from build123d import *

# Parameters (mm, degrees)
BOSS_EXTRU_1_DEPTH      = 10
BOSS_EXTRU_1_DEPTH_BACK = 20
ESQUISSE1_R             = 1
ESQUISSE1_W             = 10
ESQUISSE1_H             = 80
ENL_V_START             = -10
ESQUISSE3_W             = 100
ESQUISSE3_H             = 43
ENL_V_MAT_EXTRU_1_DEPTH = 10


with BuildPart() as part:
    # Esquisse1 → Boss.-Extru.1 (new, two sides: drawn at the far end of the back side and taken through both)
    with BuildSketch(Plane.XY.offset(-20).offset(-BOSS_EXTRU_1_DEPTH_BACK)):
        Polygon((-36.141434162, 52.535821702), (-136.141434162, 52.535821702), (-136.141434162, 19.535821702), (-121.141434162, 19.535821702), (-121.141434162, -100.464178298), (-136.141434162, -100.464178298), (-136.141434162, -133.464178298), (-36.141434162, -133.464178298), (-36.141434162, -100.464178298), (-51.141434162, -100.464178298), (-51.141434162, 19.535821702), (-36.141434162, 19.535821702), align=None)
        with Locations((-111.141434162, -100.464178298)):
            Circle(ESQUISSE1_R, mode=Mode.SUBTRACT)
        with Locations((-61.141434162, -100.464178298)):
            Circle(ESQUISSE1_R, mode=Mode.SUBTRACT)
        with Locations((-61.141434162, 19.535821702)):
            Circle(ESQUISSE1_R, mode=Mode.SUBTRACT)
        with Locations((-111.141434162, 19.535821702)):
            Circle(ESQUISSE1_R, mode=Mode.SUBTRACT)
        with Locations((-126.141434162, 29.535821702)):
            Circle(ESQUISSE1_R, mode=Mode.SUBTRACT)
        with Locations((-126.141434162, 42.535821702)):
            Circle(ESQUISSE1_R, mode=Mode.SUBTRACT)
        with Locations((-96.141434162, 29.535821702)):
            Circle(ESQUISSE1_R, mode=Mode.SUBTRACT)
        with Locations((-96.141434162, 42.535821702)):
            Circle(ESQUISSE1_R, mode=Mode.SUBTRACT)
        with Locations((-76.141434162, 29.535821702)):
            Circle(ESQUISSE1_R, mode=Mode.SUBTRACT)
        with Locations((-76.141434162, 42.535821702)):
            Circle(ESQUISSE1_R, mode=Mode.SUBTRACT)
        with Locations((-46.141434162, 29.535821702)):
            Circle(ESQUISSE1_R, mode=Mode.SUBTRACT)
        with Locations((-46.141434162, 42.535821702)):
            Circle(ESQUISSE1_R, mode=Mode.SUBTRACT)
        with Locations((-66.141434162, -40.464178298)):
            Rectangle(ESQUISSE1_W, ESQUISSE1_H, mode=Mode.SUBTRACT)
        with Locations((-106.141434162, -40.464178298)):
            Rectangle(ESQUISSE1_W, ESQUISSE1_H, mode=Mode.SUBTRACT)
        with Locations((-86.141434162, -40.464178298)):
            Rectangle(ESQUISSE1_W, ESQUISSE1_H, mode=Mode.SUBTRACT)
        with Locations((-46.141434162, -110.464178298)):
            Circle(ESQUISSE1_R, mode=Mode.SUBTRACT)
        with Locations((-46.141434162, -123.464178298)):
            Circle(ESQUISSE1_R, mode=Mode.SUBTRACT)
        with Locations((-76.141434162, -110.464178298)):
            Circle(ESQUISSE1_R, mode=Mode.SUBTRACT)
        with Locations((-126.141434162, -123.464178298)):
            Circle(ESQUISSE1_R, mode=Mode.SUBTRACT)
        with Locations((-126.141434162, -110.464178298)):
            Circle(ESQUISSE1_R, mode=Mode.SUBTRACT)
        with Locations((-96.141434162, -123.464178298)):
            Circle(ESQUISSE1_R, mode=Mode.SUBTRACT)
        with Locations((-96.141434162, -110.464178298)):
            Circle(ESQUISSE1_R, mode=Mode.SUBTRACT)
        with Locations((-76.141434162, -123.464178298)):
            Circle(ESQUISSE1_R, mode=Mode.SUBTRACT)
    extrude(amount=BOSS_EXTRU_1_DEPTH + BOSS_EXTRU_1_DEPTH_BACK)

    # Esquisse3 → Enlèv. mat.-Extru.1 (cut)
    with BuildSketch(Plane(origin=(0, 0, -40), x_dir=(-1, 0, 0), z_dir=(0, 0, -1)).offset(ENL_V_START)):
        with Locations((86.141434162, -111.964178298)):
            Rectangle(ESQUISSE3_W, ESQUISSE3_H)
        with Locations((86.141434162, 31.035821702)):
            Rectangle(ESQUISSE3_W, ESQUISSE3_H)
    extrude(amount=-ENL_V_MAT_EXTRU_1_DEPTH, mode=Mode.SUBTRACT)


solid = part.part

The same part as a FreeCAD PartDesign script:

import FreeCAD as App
import Part
import Sketcher

V = App.Vector
Q = App.Units.Quantity


def add_polygon(sketch, points):
    """Adds a closed chain of lines whose ends are joined by coincident constraints."""
    first, n = sketch.GeometryCount, len(points)
    for a, b in zip(points, points[1:] + points[:1]):
        sketch.addGeometry(Part.LineSegment(App.Vector(*a, 0), App.Vector(*b, 0)), False)
    for i in range(n):
        sketch.addConstraint(Sketcher.Constraint("Coincident", first + i, 2, first + (i + 1) % n, 1))

doc = App.newDocument("Part")
body = doc.addObject("PartDesign::Body", "Body")

sketch1 = body.newObject("Sketcher::SketchObject", "Sketch")
sketch1.AttachmentSupport = (doc.getObject("XY_Plane"), [""])
sketch1.MapMode = "FlatFace"
sketch1.AttachmentOffset = App.Placement(V(0, 0, -20), App.Rotation())
add_polygon(sketch1, [(-36.1, 52.5), (-136.1, 52.5), (-136.1, 19.5), (-121.1, 19.5), (-121.1, -100.5), (-136.1, -100.5), (-136.1, -133.5), (-36.1, -133.5), (-36.1, -100.5), (-51.1, -100.5), (-51.1, 19.5), (-36.1, 19.5)])
sketch1.addGeometry(Part.Circle(V(-126.1, -123.5, 0), V(0, 0, 1), 1), False)
sketch1.addGeometry(Part.Circle(V(-126.1, -110.5, 0), V(0, 0, 1), 1), False)
sketch1.addGeometry(Part.Circle(V(-111.1, -100.5, 0), V(0, 0, 1), 1), False)
sketch1.addGeometry(Part.Circle(V(-96.1, -123.5, 0), V(0, 0, 1), 1), False)
sketch1.addGeometry(Part.Circle(V(-96.1, -110.5, 0), V(0, 0, 1), 1), False)
add_polygon(sketch1, [(-101.1, -80.5), (-111.1, -80.5), (-111.1, -0.5), (-101.1, -0.5)])
sketch1.addGeometry(Part.Circle(V(-76.1, -123.5, 0), V(0, 0, 1), 1), False)
sketch1.addGeometry(Part.Circle(V(-76.1, -110.5, 0), V(0, 0, 1), 1), False)
sketch1.addGeometry(Part.Circle(V(-46.1, -123.5, 0), V(0, 0, 1), 1), False)
sketch1.addGeometry(Part.Circle(V(-46.1, -110.5, 0), V(0, 0, 1), 1), False)
sketch1.addGeometry(Part.Circle(V(-61.1, -100.5, 0), V(0, 0, 1), 1), False)
add_polygon(sketch1, [(-81.1, -80.5), (-91.1, -80.5), (-91.1, -0.5), (-81.1, -0.5)])
add_polygon(sketch1, [(-61.1, -80.5), (-71.1, -80.5), (-71.1, -0.5), (-61.1, -0.5)])
sketch1.addGeometry(Part.Circle(V(-111.1, 19.5, 0), V(0, 0, 1), 1), False)
sketch1.addGeometry(Part.Circle(V(-126.1, 29.5, 0), V(0, 0, 1), 1), False)
sketch1.addGeometry(Part.Circle(V(-126.1, 42.5, 0), V(0, 0, 1), 1), False)
sketch1.addGeometry(Part.Circle(V(-96.1, 29.5, 0), V(0, 0, 1), 1), False)
sketch1.addGeometry(Part.Circle(V(-96.1, 42.5, 0), V(0, 0, 1), 1), False)
sketch1.addGeometry(Part.Circle(V(-76.1, 29.5, 0), V(0, 0, 1), 1), False)
sketch1.addGeometry(Part.Circle(V(-76.1, 42.5, 0), V(0, 0, 1), 1), False)
sketch1.addGeometry(Part.Circle(V(-61.1, 19.5, 0), V(0, 0, 1), 1), False)
sketch1.addGeometry(Part.Circle(V(-46.1, 29.5, 0), V(0, 0, 1), 1), False)
sketch1.addGeometry(Part.Circle(V(-46.1, 42.5, 0), V(0, 0, 1), 1), False)
sketch1.addConstraint([
    Sketcher.Constraint("Horizontal", 0),
    Sketcher.Constraint("Vertical", 1),
    Sketcher.Constraint("Horizontal", 2),
    Sketcher.Constraint("Vertical", 3),
    Sketcher.Constraint("Horizontal", 4),
    Sketcher.Constraint("Vertical", 5),
    Sketcher.Constraint("Horizontal", 6),
    Sketcher.Constraint("Vertical", 7),
    Sketcher.Constraint("Horizontal", 8),
    Sketcher.Constraint("Vertical", 9),
    Sketcher.Constraint("Horizontal", 10),
    Sketcher.Constraint("Vertical", 11),
    Sketcher.Constraint("Horizontal", 17),
    Sketcher.Constraint("Vertical", 18),
    Sketcher.Constraint("Horizontal", 19),
    Sketcher.Constraint("Vertical", 20),
    Sketcher.Constraint("Horizontal", 26),
    Sketcher.Constraint("Vertical", 27),
    Sketcher.Constraint("Horizontal", 28),
    Sketcher.Constraint("Vertical", 29),
    Sketcher.Constraint("Horizontal", 30),
    Sketcher.Constraint("Vertical", 31),
    Sketcher.Constraint("Horizontal", 32),
    Sketcher.Constraint("Vertical", 33),
    Sketcher.Constraint("Equal", 12, 13),
    Sketcher.Constraint("Equal", 13, 14),
    Sketcher.Constraint("Equal", 14, 15),
    Sketcher.Constraint("Equal", 15, 16),
    Sketcher.Constraint("Equal", 16, 21),
    Sketcher.Constraint("Equal", 21, 22),
    Sketcher.Constraint("Equal", 22, 23),
    Sketcher.Constraint("Equal", 23, 24),
    Sketcher.Constraint("Equal", 24, 25),
    Sketcher.Constraint("Equal", 25, 34),
    Sketcher.Constraint("Equal", 34, 35),
    Sketcher.Constraint("Equal", 35, 36),
    Sketcher.Constraint("Equal", 36, 37),
    Sketcher.Constraint("Equal", 37, 38),
    Sketcher.Constraint("Equal", 38, 39),
    Sketcher.Constraint("Equal", 39, 40),
    Sketcher.Constraint("Equal", 40, 41),
    Sketcher.Constraint("Equal", 41, 42),
    Sketcher.Constraint("Equal", 42, 43),
    Sketcher.Constraint("Horizontal", 12, 3, 15, 3),
    Sketcher.Constraint("Horizontal", 13, 3, 16, 3),
    Sketcher.Constraint("Horizontal", 15, 3, 21, 3),
    Sketcher.Constraint("Horizontal", 16, 3, 22, 3),
    Sketcher.Constraint("Horizontal", 21, 3, 23, 3),
    Sketcher.Constraint("Horizontal", 22, 3, 24, 3),
    Sketcher.Constraint("Horizontal", 14, 3, 25, 3),
    Sketcher.Constraint("Horizontal", 35, 3, 37, 3),
    Sketcher.Constraint("Horizontal", 36, 3, 38, 3),
    Sketcher.Constraint("Horizontal", 37, 3, 39, 3),
    Sketcher.Constraint("Horizontal", 38, 3, 40, 3),
    Sketcher.Constraint("Horizontal", 34, 3, 41, 3),
    Sketcher.Constraint("Horizontal", 39, 3, 42, 3),
    Sketcher.Constraint("Horizontal", 40, 3, 43, 3),
    Sketcher.Constraint("Horizontal", 41, 3, 1, 2),
    Sketcher.Constraint("Horizontal", 25, 3, 3, 2),
    Sketcher.Constraint("Horizontal", 4, 2, 7, 2),
    Sketcher.Constraint("Horizontal", 2, 2, 9, 2),
    Sketcher.Constraint("Horizontal", 20, 2, 26, 2),
    Sketcher.Constraint("Horizontal", 19, 2, 27, 2),
    Sketcher.Constraint("Horizontal", 29, 2, 30, 2),
    Sketcher.Constraint("Horizontal", 28, 2, 31, 2),
    Sketcher.Constraint("Vertical", 12, 3, 13, 3),
    Sketcher.Constraint("Vertical", 15, 3, 16, 3),
    Sketcher.Constraint("Vertical", 21, 3, 22, 3),
    Sketcher.Constraint("Vertical", 23, 3, 24, 3),
    Sketcher.Constraint("Vertical", 14, 3, 34, 3),
    Sketcher.Constraint("Vertical", 13, 3, 35, 3),
    Sketcher.Constraint("Vertical", 35, 3, 36, 3),
    Sketcher.Constraint("Vertical", 16, 3, 37, 3),
    Sketcher.Constraint("Vertical", 37, 3, 38, 3),
    Sketcher.Constraint("Vertical", 22, 3, 39, 3),
    Sketcher.Constraint("Vertical", 39, 3, 40, 3),
    Sketcher.Constraint("Vertical", 25, 3, 41, 3),
    Sketcher.Constraint("Vertical", 24, 3, 42, 3),
    Sketcher.Constraint("Vertical", 42, 3, 43, 3),
    Sketcher.Constraint("Vertical", 1, 2, 4, 2),
    Sketcher.Constraint("Vertical", 7, 2, 10, 2),
    Sketcher.Constraint("Vertical", 34, 3, 17, 2),
    Sketcher.Constraint("Vertical", 41, 3, 32, 2),
    Sketcher.Constraint("Equal", 4, 8),
    Sketcher.Constraint("Equal", 19, 26),
    Sketcher.Constraint("Equal", 28, 30),
    Sketcher.Constraint("Equal", 1, 5),
    Sketcher.Constraint("Diameter", 12, Q("2 mm")),
    Sketcher.Constraint("DistanceX", 0, 2, 0, 1, Q("100 mm")),
    Sketcher.Constraint("DistanceX", 2, 1, 2, 2, Q("15 mm")),
    Sketcher.Constraint("DistanceX", 17, 2, 17, 1, Q("10 mm")),
    Sketcher.Constraint("DistanceY", 1, 2, 1, 1, Q("33 mm")),
    Sketcher.Constraint("DistanceY", 3, 2, 3, 1, Q("120 mm")),
    Sketcher.Constraint("DistanceY", 18, 1, 18, 2, Q("80 mm")),
    Sketcher.Constraint("DistanceY", 12, 3, 13, 3, Q("13 mm")),
    Sketcher.Constraint("DistanceX", 13, 3, 14, 3, Q("15 mm")),
    Sketcher.Constraint("DistanceY", 13, 3, 14, 3, Q("10 mm")),
    Sketcher.Constraint("DistanceX", 14, 3, 15, 3, Q("15 mm")),
    Sketcher.Constraint("DistanceX", 15, 3, 21, 3, Q("20 mm")),
    Sketcher.Constraint("DistanceX", 21, 3, 23, 3, Q("30 mm")),
    Sketcher.Constraint("DistanceX", 22, 3, 25, 3, Q("15 mm")),
    Sketcher.Constraint("DistanceY", 34, 3, 35, 3, Q("10 mm")),
    Sketcher.Constraint("DistanceY", 35, 3, 36, 3, Q("13 mm")),
    Sketcher.Constraint("DistanceX", 0, 2, 36, 3, Q("10 mm")),
    Sketcher.Constraint("DistanceY", 14, 3, 17, 2, Q("20 mm")),
    Sketcher.Constraint("DistanceX", 20, 2, 26, 2, Q("10 mm")),
    Sketcher.Constraint("DistanceY", 12, 3, -1, 1, Q("123.464178 mm")),
    Sketcher.Constraint("DistanceX", 12, 3, -1, 1, Q("126.141434 mm")),
])
pad1 = body.newObject("PartDesign::Pad", "Pad")
pad1.Profile = sketch1
pad1.Type = "TwoLengths"
pad1.Length = 10
pad1.Length2 = 20

sketch2 = body.newObject("Sketcher::SketchObject", "Sketch001")
sketch2.AttachmentSupport = (doc.getObject("XY_Plane"), [""])
sketch2.MapMode = "FlatFace"
sketch2.AttachmentOffset = App.Placement(V(0, 0, -30), App.Rotation())
add_polygon(sketch2, [(-36, -90), (-36, -133), (-136, -133), (-136, -90)])
add_polygon(sketch2, [(-36, 53), (-36, 10), (-136, 10), (-136, 53)])
sketch2.addConstraint([
    Sketcher.Constraint("Vertical", 0),
    Sketcher.Constraint("Horizontal", 1),
    Sketcher.Constraint("Vertical", 2),
    Sketcher.Constraint("Horizontal", 3),
    Sketcher.Constraint("Vertical", 4),
    Sketcher.Constraint("Horizontal", 5),
    Sketcher.Constraint("Vertical", 6),
    Sketcher.Constraint("Horizontal", 7),
    Sketcher.Constraint("Vertical", 3, 2, 4, 2),
    Sketcher.Constraint("Vertical", 2, 2, 5, 2),
    Sketcher.Constraint("Equal", 2, 4),
    Sketcher.Constraint("DistanceX", 1, 2, 1, 1, Q("100 mm")),
    Sketcher.Constraint("DistanceY", 0, 2, 0, 1, Q("43 mm")),
    Sketcher.Constraint("DistanceY", 3, 2, 4, 2, Q("100 mm")),
    Sketcher.Constraint("DistanceY", 0, 2, -1, 1, Q("133.464178 mm")),
    Sketcher.Constraint("DistanceX", 0, 2, -1, 1, Q("36.141434 mm")),
])
pocket1 = body.newObject("PartDesign::Pocket", "Pocket")
pocket1.Profile = sketch2
pocket1.Length = 10
pocket1.Reversed = True

doc.recompute()
